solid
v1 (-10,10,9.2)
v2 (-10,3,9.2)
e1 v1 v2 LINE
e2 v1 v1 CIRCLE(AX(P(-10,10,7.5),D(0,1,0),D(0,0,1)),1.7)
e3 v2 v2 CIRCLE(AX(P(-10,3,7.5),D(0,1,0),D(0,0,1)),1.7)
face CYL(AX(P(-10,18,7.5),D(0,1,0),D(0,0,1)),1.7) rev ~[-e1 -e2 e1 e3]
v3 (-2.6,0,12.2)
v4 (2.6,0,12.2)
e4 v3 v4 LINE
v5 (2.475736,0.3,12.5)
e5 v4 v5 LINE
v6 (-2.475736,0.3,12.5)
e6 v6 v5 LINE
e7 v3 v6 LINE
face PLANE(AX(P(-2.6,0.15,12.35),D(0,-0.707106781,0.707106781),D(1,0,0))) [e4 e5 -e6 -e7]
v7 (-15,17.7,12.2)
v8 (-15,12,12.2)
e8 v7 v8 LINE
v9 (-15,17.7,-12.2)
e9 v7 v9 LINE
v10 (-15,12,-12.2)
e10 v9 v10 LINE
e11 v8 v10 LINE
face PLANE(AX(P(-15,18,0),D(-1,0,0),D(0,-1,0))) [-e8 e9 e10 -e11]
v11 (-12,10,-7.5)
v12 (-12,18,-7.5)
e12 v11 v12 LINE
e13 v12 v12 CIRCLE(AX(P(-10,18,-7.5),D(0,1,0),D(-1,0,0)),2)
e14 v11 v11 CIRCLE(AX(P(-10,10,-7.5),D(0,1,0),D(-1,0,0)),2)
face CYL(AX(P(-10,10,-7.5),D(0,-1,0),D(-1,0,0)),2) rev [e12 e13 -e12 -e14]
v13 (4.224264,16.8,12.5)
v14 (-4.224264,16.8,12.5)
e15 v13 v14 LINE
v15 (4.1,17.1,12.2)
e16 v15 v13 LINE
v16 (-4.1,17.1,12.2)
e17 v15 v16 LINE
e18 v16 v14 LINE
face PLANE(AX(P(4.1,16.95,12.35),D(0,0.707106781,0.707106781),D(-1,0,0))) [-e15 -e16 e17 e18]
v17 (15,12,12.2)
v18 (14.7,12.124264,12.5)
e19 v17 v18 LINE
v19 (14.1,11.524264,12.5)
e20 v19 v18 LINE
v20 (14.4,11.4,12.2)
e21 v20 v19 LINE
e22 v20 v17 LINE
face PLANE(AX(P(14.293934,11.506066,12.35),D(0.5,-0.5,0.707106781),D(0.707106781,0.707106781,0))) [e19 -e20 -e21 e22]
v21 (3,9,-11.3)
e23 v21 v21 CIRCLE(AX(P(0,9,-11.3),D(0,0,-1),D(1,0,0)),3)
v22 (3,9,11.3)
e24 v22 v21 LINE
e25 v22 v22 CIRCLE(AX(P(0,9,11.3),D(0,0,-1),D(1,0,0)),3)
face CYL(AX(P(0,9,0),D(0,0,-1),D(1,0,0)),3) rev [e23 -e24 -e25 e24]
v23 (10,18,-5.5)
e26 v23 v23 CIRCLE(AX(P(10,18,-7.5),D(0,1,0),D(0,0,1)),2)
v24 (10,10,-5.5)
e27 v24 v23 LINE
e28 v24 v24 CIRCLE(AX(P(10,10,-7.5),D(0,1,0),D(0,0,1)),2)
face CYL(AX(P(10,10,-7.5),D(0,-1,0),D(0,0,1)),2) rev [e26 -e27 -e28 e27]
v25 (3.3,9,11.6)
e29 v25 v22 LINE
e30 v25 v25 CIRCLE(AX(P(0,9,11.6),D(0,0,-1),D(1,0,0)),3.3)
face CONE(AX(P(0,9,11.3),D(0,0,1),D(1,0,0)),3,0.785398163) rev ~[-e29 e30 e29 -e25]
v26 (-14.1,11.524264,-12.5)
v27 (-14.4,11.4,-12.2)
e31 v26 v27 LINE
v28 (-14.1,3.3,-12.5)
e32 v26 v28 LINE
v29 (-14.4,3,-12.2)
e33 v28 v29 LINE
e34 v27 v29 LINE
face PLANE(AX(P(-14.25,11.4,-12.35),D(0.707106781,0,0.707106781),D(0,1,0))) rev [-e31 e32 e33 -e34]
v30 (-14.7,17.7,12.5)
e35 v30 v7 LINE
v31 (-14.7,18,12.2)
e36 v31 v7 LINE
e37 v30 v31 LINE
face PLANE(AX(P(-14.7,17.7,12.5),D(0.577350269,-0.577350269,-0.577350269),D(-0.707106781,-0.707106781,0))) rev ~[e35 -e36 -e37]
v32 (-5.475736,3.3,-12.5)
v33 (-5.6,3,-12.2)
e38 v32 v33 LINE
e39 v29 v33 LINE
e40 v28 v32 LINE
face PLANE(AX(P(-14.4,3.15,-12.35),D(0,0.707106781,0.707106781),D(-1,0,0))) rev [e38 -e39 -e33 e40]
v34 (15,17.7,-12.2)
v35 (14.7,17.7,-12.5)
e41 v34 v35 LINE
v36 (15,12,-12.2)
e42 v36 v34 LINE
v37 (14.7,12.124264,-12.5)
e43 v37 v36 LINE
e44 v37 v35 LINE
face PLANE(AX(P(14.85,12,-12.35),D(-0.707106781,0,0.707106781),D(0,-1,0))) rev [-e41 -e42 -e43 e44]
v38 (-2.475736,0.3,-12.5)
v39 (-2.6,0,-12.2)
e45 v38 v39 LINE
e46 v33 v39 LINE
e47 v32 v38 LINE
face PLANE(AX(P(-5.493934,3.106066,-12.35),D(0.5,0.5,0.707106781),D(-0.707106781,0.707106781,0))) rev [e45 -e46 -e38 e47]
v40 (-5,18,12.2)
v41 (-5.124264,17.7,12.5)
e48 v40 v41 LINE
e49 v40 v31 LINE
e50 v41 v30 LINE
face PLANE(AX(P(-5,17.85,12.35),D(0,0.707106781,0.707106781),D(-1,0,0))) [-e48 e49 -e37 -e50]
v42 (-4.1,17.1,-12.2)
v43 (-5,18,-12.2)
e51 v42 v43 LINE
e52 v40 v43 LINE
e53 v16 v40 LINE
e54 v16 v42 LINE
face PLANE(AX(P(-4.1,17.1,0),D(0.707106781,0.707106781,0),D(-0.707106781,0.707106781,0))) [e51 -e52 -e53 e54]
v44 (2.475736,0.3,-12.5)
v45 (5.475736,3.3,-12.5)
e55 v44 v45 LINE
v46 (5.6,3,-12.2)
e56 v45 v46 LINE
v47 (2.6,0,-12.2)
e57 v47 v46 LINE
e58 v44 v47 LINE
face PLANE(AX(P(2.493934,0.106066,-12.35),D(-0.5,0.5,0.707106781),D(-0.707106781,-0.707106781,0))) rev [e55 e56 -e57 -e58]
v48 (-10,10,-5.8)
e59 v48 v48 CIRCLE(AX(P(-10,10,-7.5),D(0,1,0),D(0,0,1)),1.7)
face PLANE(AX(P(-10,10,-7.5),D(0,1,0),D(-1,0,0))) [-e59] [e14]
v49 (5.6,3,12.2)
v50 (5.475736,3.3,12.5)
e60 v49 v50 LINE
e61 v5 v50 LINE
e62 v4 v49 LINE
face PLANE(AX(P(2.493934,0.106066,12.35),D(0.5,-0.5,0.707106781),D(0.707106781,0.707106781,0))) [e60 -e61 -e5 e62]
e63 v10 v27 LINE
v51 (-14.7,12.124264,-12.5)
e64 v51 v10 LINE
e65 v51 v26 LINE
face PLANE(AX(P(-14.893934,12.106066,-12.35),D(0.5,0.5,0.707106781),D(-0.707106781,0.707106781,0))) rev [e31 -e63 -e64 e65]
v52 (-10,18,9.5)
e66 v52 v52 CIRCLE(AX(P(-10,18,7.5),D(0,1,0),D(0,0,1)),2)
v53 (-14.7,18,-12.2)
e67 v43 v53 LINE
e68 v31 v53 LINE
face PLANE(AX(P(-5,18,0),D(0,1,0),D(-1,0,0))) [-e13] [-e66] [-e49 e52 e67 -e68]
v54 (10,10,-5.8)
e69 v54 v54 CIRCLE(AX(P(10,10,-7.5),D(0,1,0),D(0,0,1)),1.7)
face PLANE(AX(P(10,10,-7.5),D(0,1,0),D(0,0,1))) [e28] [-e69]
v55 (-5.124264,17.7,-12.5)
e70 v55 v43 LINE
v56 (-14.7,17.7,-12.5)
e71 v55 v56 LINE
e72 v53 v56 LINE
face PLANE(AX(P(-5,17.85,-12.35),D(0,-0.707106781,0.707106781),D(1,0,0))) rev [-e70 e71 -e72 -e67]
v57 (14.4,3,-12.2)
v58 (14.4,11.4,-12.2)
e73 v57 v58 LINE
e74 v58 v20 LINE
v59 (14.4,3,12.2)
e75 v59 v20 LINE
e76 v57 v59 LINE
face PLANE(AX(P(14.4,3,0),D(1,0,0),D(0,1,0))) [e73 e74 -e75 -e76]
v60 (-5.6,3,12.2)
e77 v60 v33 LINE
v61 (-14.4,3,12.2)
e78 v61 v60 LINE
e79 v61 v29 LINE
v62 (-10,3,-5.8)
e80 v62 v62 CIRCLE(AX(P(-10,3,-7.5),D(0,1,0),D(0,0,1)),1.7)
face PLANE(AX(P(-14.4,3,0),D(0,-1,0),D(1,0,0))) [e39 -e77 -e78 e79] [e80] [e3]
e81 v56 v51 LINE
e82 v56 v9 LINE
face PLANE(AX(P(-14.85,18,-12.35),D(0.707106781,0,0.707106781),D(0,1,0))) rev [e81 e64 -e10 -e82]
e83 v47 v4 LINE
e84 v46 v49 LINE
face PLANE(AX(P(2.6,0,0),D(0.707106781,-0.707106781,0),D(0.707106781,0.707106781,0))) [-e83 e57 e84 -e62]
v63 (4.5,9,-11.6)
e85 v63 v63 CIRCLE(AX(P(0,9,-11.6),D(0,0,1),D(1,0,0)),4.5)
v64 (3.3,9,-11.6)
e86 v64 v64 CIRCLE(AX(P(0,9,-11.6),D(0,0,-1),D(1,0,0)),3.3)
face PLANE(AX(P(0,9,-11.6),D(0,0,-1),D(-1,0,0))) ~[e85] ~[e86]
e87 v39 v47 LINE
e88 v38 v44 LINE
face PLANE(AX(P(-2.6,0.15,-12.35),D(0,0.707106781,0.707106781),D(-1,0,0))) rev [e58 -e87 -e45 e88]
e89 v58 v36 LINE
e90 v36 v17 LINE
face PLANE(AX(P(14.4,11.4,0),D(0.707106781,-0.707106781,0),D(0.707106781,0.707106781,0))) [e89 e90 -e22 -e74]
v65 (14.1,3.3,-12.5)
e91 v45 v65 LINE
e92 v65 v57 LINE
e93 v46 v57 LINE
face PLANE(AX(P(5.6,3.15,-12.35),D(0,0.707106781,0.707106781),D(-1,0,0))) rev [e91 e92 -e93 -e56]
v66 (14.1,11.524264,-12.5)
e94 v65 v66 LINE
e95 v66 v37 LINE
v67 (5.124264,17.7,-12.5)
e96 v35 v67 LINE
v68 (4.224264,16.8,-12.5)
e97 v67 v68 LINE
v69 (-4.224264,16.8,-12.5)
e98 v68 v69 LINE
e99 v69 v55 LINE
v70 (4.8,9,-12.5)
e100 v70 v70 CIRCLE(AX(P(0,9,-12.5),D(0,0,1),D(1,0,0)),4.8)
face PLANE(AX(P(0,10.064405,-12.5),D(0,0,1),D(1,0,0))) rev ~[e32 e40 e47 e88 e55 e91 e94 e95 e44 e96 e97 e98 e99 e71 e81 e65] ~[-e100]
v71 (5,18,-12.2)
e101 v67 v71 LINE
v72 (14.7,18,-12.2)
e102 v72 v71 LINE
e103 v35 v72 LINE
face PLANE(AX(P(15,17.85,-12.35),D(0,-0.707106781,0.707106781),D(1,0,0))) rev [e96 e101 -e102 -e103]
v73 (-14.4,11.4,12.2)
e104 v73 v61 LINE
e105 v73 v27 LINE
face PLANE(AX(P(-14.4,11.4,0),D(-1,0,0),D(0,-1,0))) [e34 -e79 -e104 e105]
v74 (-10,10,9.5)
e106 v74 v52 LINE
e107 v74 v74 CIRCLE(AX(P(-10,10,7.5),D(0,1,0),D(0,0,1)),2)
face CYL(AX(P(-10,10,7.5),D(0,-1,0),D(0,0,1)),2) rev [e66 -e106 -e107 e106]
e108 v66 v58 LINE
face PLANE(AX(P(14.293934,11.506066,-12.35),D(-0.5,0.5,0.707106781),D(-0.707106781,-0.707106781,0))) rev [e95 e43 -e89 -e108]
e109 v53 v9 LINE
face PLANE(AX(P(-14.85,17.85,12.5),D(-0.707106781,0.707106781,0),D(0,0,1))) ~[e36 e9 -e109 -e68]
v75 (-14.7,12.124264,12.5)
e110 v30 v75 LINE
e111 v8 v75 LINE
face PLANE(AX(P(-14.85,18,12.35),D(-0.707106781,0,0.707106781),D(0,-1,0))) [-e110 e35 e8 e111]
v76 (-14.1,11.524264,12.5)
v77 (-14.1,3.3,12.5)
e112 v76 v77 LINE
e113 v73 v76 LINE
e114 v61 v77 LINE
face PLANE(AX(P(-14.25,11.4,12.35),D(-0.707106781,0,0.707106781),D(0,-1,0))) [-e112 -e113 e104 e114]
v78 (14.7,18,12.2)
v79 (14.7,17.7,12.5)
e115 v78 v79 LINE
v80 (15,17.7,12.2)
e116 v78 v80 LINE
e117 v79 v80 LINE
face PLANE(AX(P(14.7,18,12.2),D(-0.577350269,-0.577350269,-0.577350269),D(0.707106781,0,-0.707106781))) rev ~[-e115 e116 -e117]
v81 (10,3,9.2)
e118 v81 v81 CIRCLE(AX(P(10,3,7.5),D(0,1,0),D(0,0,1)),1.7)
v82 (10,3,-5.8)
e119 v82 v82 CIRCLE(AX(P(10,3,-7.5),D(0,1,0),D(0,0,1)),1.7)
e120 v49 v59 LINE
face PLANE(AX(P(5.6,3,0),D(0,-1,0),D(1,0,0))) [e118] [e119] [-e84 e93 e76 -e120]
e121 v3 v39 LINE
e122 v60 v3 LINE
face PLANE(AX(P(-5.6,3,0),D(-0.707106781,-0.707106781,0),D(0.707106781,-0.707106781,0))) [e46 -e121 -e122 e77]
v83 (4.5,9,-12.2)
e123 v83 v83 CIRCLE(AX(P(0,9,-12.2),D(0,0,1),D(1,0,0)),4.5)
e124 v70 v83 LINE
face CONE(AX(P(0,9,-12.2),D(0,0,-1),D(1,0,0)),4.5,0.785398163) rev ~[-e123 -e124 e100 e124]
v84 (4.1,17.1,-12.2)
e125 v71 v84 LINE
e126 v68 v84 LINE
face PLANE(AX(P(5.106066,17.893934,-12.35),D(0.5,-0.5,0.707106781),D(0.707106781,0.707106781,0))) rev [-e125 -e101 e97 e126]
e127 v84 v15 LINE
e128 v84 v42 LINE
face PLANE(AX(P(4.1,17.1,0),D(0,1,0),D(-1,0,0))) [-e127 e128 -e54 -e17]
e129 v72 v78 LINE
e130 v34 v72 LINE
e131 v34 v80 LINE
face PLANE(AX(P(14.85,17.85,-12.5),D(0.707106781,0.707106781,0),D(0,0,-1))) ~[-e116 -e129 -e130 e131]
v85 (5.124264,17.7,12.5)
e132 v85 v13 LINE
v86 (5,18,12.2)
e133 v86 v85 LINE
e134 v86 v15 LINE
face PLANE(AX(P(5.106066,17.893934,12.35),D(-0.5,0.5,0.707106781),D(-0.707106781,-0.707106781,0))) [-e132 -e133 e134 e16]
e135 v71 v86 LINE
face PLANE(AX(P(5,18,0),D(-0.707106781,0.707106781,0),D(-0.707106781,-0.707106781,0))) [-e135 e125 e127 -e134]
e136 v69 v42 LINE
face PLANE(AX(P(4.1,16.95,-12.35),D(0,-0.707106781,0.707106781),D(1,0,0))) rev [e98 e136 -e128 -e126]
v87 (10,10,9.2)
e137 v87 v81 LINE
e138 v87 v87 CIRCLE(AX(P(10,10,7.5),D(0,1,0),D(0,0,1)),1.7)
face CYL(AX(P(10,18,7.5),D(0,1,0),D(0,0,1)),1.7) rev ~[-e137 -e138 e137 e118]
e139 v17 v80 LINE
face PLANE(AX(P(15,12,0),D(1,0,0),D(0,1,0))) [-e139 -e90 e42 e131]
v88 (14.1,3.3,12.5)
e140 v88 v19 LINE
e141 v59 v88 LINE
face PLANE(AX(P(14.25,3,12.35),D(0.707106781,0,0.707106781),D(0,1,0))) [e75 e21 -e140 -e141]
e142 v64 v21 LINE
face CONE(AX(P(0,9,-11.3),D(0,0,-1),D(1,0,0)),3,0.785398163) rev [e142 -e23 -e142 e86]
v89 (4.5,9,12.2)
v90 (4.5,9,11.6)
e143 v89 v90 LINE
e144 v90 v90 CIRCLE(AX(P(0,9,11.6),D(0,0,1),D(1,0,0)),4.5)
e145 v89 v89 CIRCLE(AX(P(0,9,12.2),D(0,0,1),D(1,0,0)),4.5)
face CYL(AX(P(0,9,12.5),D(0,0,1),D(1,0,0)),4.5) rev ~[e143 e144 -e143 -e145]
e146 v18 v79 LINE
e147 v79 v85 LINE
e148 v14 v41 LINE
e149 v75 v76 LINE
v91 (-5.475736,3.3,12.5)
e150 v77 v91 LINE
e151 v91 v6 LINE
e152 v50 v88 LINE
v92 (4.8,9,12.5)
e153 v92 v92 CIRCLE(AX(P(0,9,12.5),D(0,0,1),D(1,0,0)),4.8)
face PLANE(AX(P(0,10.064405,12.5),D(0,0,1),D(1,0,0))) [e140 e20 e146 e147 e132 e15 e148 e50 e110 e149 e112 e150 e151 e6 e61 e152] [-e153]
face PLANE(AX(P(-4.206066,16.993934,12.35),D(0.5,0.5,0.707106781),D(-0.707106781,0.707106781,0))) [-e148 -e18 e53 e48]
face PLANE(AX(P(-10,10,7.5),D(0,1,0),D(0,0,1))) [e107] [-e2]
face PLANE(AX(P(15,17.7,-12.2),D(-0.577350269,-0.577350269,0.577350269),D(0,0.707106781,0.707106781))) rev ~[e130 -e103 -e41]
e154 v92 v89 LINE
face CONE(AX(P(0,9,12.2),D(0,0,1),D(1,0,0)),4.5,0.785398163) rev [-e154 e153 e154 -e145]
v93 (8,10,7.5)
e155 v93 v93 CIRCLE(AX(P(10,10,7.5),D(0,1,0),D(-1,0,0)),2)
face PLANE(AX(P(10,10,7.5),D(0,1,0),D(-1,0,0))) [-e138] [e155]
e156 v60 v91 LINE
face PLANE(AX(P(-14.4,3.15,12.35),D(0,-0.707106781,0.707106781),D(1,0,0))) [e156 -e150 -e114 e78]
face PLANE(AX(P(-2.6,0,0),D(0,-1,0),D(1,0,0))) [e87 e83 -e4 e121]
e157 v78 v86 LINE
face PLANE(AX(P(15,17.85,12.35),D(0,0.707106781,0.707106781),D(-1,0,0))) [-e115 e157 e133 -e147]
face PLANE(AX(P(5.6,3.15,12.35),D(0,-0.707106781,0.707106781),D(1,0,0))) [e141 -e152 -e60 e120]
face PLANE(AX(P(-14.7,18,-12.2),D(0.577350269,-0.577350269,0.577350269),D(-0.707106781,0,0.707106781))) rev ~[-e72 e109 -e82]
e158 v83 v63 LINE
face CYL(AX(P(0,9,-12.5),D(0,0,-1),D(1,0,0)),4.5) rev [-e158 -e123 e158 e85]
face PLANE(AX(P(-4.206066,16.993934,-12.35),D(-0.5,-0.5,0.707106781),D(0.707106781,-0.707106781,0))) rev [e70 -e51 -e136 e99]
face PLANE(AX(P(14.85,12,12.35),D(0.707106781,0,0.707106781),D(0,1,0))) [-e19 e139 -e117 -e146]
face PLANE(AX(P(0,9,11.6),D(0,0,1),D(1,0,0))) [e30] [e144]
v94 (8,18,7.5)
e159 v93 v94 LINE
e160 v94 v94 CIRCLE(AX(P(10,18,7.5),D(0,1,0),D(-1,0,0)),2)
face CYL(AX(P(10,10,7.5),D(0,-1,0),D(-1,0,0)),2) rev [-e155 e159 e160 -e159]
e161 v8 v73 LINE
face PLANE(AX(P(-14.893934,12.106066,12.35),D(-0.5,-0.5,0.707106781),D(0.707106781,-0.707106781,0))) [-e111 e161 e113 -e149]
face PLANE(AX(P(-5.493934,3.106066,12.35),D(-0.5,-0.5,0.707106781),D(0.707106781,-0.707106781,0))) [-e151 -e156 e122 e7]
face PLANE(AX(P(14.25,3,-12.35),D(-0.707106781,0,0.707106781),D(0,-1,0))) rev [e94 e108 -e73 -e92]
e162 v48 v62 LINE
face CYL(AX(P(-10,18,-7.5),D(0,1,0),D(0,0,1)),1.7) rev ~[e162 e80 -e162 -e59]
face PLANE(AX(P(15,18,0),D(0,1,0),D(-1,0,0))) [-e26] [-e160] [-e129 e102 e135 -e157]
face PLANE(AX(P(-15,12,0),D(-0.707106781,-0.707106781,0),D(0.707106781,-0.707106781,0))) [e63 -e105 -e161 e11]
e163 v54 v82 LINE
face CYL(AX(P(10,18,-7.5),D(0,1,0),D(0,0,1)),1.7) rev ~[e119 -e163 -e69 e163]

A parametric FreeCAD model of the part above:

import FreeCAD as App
import Part
import Sketcher
from FreeCAD import Vector


def edges_at(feature, points):
    """Names of the edges that pass closest to the given points."""
    edges = feature.Shape.Edges
    near = lambda p: min(range(len(edges)), key=lambda i: edges[i].distToShape(Part.Vertex(*p))[0])
    return sorted({f"Edge{near(p) + 1}" for p in points})


def add_polygon(sketch, points):
    """Adds a closed chain of lines whose ends are joined by coincident constraints."""
    first, n = sketch.GeometryCount, len(points)
    for a, b in zip(points, points[1:] + points[:1]):
        sketch.addGeometry(Part.LineSegment(App.Vector(*a, 0), App.Vector(*b, 0)), False)
    for i in range(n):
        sketch.addConstraint(Sketcher.Constraint("Coincident", first + i, 2, first + (i + 1) % n, 1))

doc = App.newDocument("Part")
body = doc.addObject("PartDesign::Body", "Body")

sketch1 = doc.addObject("Sketcher::SketchObject", "Sketch")
body.addObject(sketch1)
sketch1.AttachmentSupport = (doc.XY_Plane, [""])
sketch1.MapMode = "FlatFace"
add_polygon(sketch1, [(-2.6, 0), (2.6, 0), (5.6, 3), (14.4, 3), (14.4, 11.4), (15, 12), (15, 18), (5, 18), (4.1, 17.1), (-4.1, 17.1), (-5, 18), (-15, 18), (-15, 12), (-14.4, 11.4), (-14.4, 3), (-5.6, 3)])
sketch1.addGeometry(Part.Circle(Vector(0, 9, 0), Vector(0, 0, 1), 3), False)
sketch1.addConstraint(Sketcher.Constraint("Horizontal", 0))
sketch1.addConstraint(Sketcher.Constraint("Horizontal", 2))
sketch1.addConstraint(Sketcher.Constraint("Vertical", 3))
sketch1.addConstraint(Sketcher.Constraint("Vertical", 5))
sketch1.addConstraint(Sketcher.Constraint("Horizontal", 6))
sketch1.addConstraint(Sketcher.Constraint("Horizontal", 8))
sketch1.addConstraint(Sketcher.Constraint("Horizontal", 10))
sketch1.addConstraint(Sketcher.Constraint("Vertical", 11))
sketch1.addConstraint(Sketcher.Constraint("Vertical", 13))
sketch1.addConstraint(Sketcher.Constraint("Horizontal", 14))
sketch1.addConstraint(Sketcher.Constraint("Symmetric", 0, 2, 15, 2, -1, 1))
sketch1.addConstraint(Sketcher.Constraint("Symmetric", 6, 2, 9, 2, -2))
sketch1.addConstraint(Sketcher.Constraint("Symmetric", 4, 2, 11, 2, -2))
sketch1.addConstraint(Sketcher.Constraint("Symmetric", 3, 2, 12, 2, -2))
sketch1.addConstraint(Sketcher.Constraint("Symmetric", 1, 2, 14, 2, -2))
sketch1.addConstraint(Sketcher.Constraint("PointOnObject", 16, 3, -2))
sketch1.addConstraint(Sketcher.Constraint("Parallel", 1, 4))
sketch1.addConstraint(Sketcher.Constraint("Parallel", 4, 7))
sketch1.addConstraint(Sketcher.Constraint("Perpendicular", 7, 9))
sketch1.addConstraint(Sketcher.Constraint("Parallel", 9, 12))
sketch1.addConstraint(Sketcher.Constraint("Diameter", 16, 6.0))
sketch1.addConstraint(Sketcher.Constraint("DistanceX", 6, 2, 6, 1, 10.0))
sketch1.addConstraint(Sketcher.Constraint("DistanceY", 5, 1, 5, 2, 6.0))
sketch1.addConstraint(Sketcher.Constraint("DistanceX", 0, 1, 0, 2, 5.2))
sketch1.addConstraint(Sketcher.Constraint("DistanceX", 2, 1, 2, 2, 8.8))
sketch1.addConstraint(Sketcher.Constraint("DistanceX", 8, 2, 8, 1, 8.2))
sketch1.addConstraint(Sketcher.Constraint("DistanceY", 3, 1, 3, 2, 8.4))
sketch1.addConstraint(Sketcher.Constraint("DistanceY", -1, 1, 16, 3, 9.0))
sketch1.addConstraint(Sketcher.Constraint("DistanceY", -1, 1, 1, 2, 3.0))
sketch1.addConstraint(Sketcher.Constraint("DistanceX", -1, 1, 4, 2, 15.0))
pad1 = doc.addObject("PartDesign::Pad", "Pad")
body.addObject(pad1)
pad1.Profile = sketch1
pad1.Length = 25
pad1.Midplane = True

sketch2 = doc.addObject("Sketcher::SketchObject", "Sketch001")
body.addObject(sketch2)
sketch2.AttachmentSupport = (doc.XY_Plane, [""])
sketch2.MapMode = "FlatFace"
sketch2.AttachmentOffset = App.Placement(Vector(0, 0, 12.5), App.Rotation())
sketch2.addGeometry(Part.Circle(Vector(0, 9, 0), Vector(0, 0, 1), 4.5), False)
sketch2.addConstraint(Sketcher.Constraint("PointOnObject", 0, 3, -2))
sketch2.addConstraint(Sketcher.Constraint("Diameter", 0, 9.0))
sketch2.addConstraint(Sketcher.Constraint("DistanceY", -1, 1, 0, 3, 9.0))
pocket1 = doc.addObject("PartDesign::Pocket", "Pocket")
body.addObject(pocket1)
pocket1.Profile = sketch2
pocket1.Length = 0.9
doc.recompute()

mirrored = doc.addObject("PartDesign::Mirrored", "Mirrored")
body.addObject(mirrored)
mirrored.Originals = [pocket1]
mirrored.MirrorPlane = (doc.XY_Plane, [""])
body.Tip = mirrored
doc.recompute()

chamfer = doc.addObject("PartDesign::Chamfer", "Chamfer")
body.addObject(chamfer)
chamfer.Base = (mirrored, edges_at(mirrored, [
    (-3, 9, 11.6),
    (-4.5, 9, 12.5),
    (-4.5, 9, -12.5),
    (-3, 9, -11.6),
]))
chamfer.Size = 0.3
doc.recompute()

chamfer2 = doc.addObject("PartDesign::Chamfer", "Chamfer001")
body.addObject(chamfer2)
chamfer2.Base = (chamfer, edges_at(chamfer, [
    (4.1, 1.5, 12.5),
    (10, 3, 12.5),
    (-10, 3, -12.5),
    (-14.4, 7.2, -12.5),
    (-14.7, 11.7, -12.5),
    (-15, 15, -12.5),
    (-10, 18, -12.5),
    (14.4, 7.2, 12.5),
    (-4.55, 17.55, -12.5),
    (0, 17.1, -12.5),
    (4.55, 17.55, -12.5),
    (10, 18, -12.5),
    (15, 15, -12.5),
    (14.7, 11.7, -12.5),
    (14.4, 7.2, -12.5),
    (10, 3, -12.5),
    (14.7, 11.7, 12.5),
    (4.1, 1.5, -12.5),
    (0, 0, -12.5),
    (-4.1, 1.5, -12.5),
    (15, 15, 12.5),
    (10, 18, 12.5),
    (-15, 18, 0),
    (15, 18, 0),
    (4.55, 17.55, 12.5),
    (0, 17.1, 12.5),
    (-4.55, 17.55, 12.5),
    (-10, 18, 12.5),
    (-4.1, 1.5, 12.5),
    (-15, 15, 12.5),
    (-14.7, 11.7, 12.5),
    (-14.4, 7.2, 12.5),
    (-10, 3, 12.5),
    (0, 0, 12.5),
]))
chamfer2.Size = 0.3

sketch3 = doc.addObject("Sketcher::SketchObject", "Sketch002")
body.addObject(sketch3)
sketch3.AttachmentSupport = (doc.XZ_Plane, [""])
sketch3.MapMode = "FlatFace"
sketch3.AttachmentOffset = App.Placement(Vector(0, 0, -10), App.Rotation())
sketch3.addGeometry(Part.Circle(Vector(10, 7.5, 0), Vector(0, 0, 1), 2), False)
sketch3.addGeometry(Part.Circle(Vector(10, -7.5, 0), Vector(0, 0, 1), 2), False)
sketch3.addGeometry(Part.Circle(Vector(-10, 7.5, 0), Vector(0, 0, 1), 2), False)
sketch3.addGeometry(Part.Circle(Vector(-10, -7.5, 0), Vector(0, 0, 1), 2), False)
sketch3.addConstraint(Sketcher.Constraint("Equal", 0, 1))
sketch3.addConstraint(Sketcher.Constraint("Equal", 1, 2))
sketch3.addConstraint(Sketcher.Constraint("Equal", 2, 3))
sketch3.addConstraint(Sketcher.Constraint("Symmetric", 1, 3, 2, 3, -1, 1))
sketch3.addConstraint(Sketcher.Constraint("Symmetric", 0, 3, 3, 3, -1, 1))
sketch3.addConstraint(Sketcher.Constraint("Symmetric", 0, 3, 2, 3, -2))
sketch3.addConstraint(Sketcher.Constraint("Diameter", 0, 4.0))
sketch3.addConstraint(Sketcher.Constraint("DistanceX", -1, 1, 0, 3, 10.0))
sketch3.addConstraint(Sketcher.Constraint("DistanceY", 1, 3, 0, 3, 15.0))
pocket2 = doc.addObject("PartDesign::Pocket", "Pocket001")
body.addObject(pocket2)
pocket2.Profile = sketch3
pocket2.Length = 8

sketch4 = doc.addObject("Sketcher::SketchObject", "Sketch003")
body.addObject(sketch4)
sketch4.AttachmentSupport = (doc.XZ_Plane, [""])
sketch4.MapMode = "FlatFace"
sketch4.AttachmentOffset = App.Placement(Vector(0, 0, -18), App.Rotation())
sketch4.addGeometry(Part.Circle(Vector(10, 7.5, 0), Vector(0, 0, 1), 1.7), False)
sketch4.addGeometry(Part.Circle(Vector(10, -7.5, 0), Vector(0, 0, 1), 1.7), False)
sketch4.addGeometry(Part.Circle(Vector(-10, 7.5, 0), Vector(0, 0, 1), 1.7), False)
sketch4.addGeometry(Part.Circle(Vector(-10, -7.5, 0), Vector(0, 0, 1), 1.7), False)
sketch4.addConstraint(Sketcher.Constraint("Equal", 0, 1))
sketch4.addConstraint(Sketcher.Constraint("Equal", 1, 2))
sketch4.addConstraint(Sketcher.Constraint("Equal", 2, 3))
sketch4.addConstraint(Sketcher.Constraint("Symmetric", 1, 3, 2, 3, -1, 1))
sketch4.addConstraint(Sketcher.Constraint("Symmetric", 0, 3, 3, 3, -1, 1))
sketch4.addConstraint(Sketcher.Constraint("Symmetric", 0, 3, 2, 3, -2))
sketch4.addConstraint(Sketcher.Constraint("Diameter", 0, 3.4))
sketch4.addConstraint(Sketcher.Constraint("DistanceX", -1, 1, 0, 3, 10.0))
sketch4.addConstraint(Sketcher.Constraint("DistanceY", 1, 3, 0, 3, 15.0))
pocket3 = doc.addObject("PartDesign::Pocket", "Pocket002")
body.addObject(pocket3)
pocket3.Profile = sketch4
pocket3.Type = "ThroughAll"
pocket3.Reversed = True

doc.recompute()
